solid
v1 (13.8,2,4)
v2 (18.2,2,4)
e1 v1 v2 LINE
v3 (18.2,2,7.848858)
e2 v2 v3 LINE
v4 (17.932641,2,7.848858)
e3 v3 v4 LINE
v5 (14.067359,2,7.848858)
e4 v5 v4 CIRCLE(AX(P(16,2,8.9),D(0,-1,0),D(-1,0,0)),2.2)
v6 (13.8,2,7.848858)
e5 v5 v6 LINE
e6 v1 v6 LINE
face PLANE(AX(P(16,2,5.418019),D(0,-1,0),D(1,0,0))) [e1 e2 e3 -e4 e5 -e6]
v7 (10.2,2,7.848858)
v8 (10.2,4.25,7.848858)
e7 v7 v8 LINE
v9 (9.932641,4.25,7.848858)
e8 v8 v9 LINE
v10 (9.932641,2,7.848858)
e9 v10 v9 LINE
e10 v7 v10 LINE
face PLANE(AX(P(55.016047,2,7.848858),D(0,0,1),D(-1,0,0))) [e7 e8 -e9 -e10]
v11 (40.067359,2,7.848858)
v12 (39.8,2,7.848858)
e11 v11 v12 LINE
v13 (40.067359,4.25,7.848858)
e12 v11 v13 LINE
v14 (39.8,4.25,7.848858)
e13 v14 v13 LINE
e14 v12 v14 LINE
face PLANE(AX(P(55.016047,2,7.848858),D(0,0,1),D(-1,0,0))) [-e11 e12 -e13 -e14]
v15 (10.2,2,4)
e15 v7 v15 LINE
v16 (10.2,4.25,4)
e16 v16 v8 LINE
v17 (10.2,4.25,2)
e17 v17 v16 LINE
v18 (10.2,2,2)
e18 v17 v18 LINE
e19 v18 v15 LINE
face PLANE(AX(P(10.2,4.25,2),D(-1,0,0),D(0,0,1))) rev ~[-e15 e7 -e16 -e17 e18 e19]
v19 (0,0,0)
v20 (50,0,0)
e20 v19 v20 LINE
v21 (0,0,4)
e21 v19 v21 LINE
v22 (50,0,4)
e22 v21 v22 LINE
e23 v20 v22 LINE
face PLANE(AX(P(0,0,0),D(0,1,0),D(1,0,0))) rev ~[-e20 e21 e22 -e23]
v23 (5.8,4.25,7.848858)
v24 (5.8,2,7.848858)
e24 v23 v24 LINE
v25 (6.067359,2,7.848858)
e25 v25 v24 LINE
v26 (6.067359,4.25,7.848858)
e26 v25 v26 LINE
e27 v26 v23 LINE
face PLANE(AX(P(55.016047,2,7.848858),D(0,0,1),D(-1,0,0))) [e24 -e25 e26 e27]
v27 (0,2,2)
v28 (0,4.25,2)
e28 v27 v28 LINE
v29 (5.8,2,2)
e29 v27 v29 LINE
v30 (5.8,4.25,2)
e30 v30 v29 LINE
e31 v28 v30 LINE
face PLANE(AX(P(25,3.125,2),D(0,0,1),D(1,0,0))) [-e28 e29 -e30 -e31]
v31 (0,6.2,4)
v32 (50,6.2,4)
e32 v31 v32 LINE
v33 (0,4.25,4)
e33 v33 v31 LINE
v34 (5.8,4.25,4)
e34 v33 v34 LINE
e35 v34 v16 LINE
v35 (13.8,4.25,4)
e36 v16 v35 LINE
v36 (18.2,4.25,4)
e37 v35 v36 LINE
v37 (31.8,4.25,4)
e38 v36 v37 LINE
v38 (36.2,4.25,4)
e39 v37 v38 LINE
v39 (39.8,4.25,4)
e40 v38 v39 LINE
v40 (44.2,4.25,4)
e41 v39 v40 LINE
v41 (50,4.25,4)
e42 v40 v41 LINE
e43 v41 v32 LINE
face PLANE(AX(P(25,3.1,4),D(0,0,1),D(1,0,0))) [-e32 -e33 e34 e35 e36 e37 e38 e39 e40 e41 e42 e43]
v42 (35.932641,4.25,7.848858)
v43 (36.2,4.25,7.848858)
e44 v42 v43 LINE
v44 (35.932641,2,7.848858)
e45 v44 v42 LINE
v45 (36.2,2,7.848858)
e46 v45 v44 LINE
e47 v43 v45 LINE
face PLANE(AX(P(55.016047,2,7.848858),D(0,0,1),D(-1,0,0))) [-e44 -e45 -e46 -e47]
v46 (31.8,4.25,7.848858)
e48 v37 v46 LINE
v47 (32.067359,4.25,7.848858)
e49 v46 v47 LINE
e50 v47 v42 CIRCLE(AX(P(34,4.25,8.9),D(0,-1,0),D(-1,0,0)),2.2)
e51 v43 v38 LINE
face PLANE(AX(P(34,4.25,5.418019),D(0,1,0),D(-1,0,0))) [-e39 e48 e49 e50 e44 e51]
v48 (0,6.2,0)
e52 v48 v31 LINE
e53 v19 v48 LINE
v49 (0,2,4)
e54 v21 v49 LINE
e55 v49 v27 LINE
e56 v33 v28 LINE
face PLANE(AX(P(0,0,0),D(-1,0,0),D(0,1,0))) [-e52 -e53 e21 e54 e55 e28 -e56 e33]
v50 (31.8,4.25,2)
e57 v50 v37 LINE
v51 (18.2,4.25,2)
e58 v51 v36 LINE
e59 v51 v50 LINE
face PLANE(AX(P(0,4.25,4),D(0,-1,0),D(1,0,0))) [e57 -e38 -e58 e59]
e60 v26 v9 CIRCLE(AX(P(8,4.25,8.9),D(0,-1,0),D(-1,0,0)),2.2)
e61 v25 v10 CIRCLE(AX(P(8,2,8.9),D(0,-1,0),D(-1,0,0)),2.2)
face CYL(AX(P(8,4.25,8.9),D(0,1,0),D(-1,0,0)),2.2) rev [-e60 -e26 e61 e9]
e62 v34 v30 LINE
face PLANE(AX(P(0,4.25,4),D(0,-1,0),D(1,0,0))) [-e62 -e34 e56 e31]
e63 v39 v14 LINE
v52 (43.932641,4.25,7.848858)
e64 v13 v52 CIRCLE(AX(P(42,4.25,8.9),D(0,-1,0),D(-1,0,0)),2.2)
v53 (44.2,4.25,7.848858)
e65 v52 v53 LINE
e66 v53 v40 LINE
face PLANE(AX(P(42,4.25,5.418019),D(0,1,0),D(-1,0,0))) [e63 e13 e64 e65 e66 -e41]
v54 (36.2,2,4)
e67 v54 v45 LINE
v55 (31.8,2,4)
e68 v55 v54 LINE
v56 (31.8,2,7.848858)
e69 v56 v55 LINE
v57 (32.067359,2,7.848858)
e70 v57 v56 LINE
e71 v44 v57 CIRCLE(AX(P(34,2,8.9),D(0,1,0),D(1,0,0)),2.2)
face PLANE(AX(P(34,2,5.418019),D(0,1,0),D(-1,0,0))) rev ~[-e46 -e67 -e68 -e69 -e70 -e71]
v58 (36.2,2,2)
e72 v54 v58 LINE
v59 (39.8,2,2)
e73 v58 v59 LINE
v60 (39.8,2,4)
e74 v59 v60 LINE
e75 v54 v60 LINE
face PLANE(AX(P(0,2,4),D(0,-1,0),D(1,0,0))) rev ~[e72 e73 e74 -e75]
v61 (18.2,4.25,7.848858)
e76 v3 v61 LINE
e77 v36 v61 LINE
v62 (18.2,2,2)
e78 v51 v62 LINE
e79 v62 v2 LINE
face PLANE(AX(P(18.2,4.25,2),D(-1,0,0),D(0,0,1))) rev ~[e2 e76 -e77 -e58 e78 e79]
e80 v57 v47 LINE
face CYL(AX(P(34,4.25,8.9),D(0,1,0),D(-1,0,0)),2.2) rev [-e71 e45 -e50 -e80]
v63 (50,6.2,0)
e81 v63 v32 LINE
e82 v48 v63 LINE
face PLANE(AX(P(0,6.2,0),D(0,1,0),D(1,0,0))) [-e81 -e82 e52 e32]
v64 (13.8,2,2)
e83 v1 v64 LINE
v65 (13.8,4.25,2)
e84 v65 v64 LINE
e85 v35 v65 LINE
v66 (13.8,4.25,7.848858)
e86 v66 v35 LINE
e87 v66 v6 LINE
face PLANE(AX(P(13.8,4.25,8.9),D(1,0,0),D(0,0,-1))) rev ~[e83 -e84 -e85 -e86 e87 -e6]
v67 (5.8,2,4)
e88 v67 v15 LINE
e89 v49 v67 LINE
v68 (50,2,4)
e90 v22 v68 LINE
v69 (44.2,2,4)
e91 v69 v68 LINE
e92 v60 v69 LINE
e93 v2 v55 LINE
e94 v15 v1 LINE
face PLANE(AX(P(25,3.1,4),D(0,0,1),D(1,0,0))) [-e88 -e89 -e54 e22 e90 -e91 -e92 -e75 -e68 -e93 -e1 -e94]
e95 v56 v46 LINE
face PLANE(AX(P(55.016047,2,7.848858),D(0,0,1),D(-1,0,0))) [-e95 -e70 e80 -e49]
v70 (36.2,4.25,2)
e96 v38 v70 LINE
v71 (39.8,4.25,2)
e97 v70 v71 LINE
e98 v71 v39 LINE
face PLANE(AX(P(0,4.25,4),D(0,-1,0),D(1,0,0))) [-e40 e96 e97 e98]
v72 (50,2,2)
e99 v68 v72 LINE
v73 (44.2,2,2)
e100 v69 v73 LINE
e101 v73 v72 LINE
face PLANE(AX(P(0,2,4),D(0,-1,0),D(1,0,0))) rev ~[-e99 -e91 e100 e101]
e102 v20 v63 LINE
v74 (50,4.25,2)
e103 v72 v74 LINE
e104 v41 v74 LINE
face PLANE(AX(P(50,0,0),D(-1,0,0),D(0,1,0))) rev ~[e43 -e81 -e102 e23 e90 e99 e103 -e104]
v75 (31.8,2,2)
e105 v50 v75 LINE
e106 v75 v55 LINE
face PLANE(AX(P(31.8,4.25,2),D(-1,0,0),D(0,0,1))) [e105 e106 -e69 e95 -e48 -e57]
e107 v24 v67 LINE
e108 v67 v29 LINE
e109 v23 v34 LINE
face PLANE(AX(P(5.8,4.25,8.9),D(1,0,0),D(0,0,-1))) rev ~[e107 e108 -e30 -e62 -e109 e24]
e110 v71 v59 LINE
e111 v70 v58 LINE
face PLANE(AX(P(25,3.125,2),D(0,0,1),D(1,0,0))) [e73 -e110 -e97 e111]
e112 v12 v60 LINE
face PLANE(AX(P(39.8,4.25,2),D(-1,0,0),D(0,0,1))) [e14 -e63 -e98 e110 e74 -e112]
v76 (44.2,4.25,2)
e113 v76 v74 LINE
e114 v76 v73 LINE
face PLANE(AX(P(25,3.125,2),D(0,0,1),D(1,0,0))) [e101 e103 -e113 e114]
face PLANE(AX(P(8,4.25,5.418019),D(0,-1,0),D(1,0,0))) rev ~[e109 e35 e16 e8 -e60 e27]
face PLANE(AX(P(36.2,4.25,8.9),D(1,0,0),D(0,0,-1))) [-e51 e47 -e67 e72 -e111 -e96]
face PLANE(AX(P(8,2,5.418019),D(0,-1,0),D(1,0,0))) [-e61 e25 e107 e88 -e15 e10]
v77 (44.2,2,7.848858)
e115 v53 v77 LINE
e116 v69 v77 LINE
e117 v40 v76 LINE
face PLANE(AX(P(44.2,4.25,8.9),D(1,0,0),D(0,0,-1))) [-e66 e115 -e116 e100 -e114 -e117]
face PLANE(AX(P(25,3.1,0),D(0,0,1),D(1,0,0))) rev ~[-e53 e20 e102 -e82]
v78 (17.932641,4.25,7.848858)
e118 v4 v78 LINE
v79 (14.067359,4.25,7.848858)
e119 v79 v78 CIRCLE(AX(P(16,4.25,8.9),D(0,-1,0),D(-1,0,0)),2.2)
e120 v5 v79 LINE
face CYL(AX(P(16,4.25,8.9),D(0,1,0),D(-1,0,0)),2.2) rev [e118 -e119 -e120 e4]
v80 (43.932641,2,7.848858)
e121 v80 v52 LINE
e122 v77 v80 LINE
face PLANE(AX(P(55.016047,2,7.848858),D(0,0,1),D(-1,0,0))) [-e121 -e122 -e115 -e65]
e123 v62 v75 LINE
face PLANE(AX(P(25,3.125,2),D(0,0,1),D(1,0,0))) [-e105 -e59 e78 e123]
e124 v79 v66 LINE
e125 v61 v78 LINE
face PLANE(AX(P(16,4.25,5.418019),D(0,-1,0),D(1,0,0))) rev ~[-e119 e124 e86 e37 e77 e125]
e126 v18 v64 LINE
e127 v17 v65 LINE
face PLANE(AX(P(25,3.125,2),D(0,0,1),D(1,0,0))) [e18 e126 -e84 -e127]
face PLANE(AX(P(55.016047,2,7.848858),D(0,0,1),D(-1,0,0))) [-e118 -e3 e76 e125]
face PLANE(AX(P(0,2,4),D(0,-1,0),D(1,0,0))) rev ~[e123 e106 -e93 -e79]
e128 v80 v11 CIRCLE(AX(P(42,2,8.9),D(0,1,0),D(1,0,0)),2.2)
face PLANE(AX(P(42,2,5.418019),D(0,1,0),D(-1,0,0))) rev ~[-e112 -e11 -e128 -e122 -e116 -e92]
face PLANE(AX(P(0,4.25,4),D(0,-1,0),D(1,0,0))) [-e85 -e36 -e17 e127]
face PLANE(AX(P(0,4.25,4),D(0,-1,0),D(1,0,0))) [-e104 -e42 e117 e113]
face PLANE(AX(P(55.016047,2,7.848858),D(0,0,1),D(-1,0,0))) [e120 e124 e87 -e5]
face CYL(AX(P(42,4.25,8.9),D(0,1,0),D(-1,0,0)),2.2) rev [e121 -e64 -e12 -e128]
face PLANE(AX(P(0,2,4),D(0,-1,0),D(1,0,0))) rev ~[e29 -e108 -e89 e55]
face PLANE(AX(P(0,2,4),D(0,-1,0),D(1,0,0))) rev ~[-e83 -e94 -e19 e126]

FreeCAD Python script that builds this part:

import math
import FreeCAD as App
import Part
import Sketcher

V = App.Vector
Q = App.Units.Quantity

doc = App.newDocument("Part")
body = doc.addObject("PartDesign::Body", "Body")

# Sketch on XY plane
sketch1 = body.newObject("Sketcher::SketchObject", "Sketch")
sketch1.AttachmentSupport = (doc.getObject("XY_Plane"), [""])
sketch1.MapMode = "FlatFace"
sketch1.addGeometry(Part.LineSegment(V(0, 6, 0), V(0, 0, 0)), False)
sketch1.addGeometry(Part.LineSegment(V(0, 0, 0), V(50, 0, 0)), False)
sketch1.addGeometry(Part.LineSegment(V(50, 0, 0), V(50, 6, 0)), False)
sketch1.addGeometry(Part.LineSegment(V(50, 6, 0), V(0, 6, 0)), False)
sketch1.addConstraint(Sketcher.Constraint("Coincident", 0, 2, 1, 1))
sketch1.addConstraint(Sketcher.Constraint("Coincident", 1, 2, 2, 1))
sketch1.addConstraint(Sketcher.Constraint("Coincident", 2, 2, 3, 1))
sketch1.addConstraint(Sketcher.Constraint("Coincident", 3, 2, 0, 1))
sketch1.addConstraint(Sketcher.Constraint("Vertical", 0))
sketch1.addConstraint(Sketcher.Constraint("Horizontal", 1))
sketch1.addConstraint(Sketcher.Constraint("Vertical", 2))
sketch1.addConstraint(Sketcher.Constraint("Horizontal", 3))
sketch1.addConstraint(Sketcher.Constraint("Coincident", 0, 2, -1, 1))
sketch1.addConstraint(Sketcher.Constraint("DistanceX", 1, 1, 1, 2, Q("50 mm")))
sketch1.addConstraint(Sketcher.Constraint("DistanceY", 0, 2, 0, 1, Q("6.2 mm")))
pad1 = body.newObject("PartDesign::Pad", "Pad")
pad1.Profile = sketch1
pad1.Length = 4

# Sketch on XY plane
sketch2 = body.newObject("Sketcher::SketchObject", "Sketch001")
sketch2.AttachmentSupport = (doc.getObject("XY_Plane"), [""])
sketch2.MapMode = "FlatFace"
sketch2.AttachmentOffset = App.Placement(V(0, 0, 4), App.Rotation())
sketch2.addGeometry(Part.LineSegment(V(0, 4.2, 0), V(0, 2, 0)), False)
sketch2.addGeometry(Part.LineSegment(V(0, 2, 0), V(50, 2, 0)), False)
sketch2.addGeometry(Part.LineSegment(V(50, 2, 0), V(50, 4.2, 0)), False)
sketch2.addGeometry(Part.LineSegment(V(50, 4.2, 0), V(0, 4.2, 0)), False)
sketch2.addConstraint(Sketcher.Constraint("Coincident", 0, 2, 1, 1))
sketch2.addConstraint(Sketcher.Constraint("Coincident", 1, 2, 2, 1))
sketch2.addConstraint(Sketcher.Constraint("Coincident", 2, 2, 3, 1))
sketch2.addConstraint(Sketcher.Constraint("Coincident", 3, 2, 0, 1))
sketch2.addConstraint(Sketcher.Constraint("Vertical", 0))
sketch2.addConstraint(Sketcher.Constraint("Horizontal", 1))
sketch2.addConstraint(Sketcher.Constraint("Vertical", 2))
sketch2.addConstraint(Sketcher.Constraint("Horizontal", 3))
sketch2.addConstraint(Sketcher.Constraint("PointOnObject", 0, 2, -2))
sketch2.addConstraint(Sketcher.Constraint("DistanceX", 1, 1, 1, 2, Q("50 mm")))
sketch2.addConstraint(Sketcher.Constraint("DistanceY", -1, 1, 0, 2, Q("2 mm")))
sketch2.addConstraint(Sketcher.Constraint("DistanceY", 0, 2, 0, 1, Q("2.25 mm")))
pocket1 = body.newObject("PartDesign::Pocket", "Pocket")
pocket1.Profile = sketch2
pocket1.Length = 2

# Sketch on XZ plane
sketch3 = body.newObject("Sketcher::SketchObject", "Sketch002")
sketch3.AttachmentSupport = (doc.getObject("XZ_Plane"), [""])
sketch3.MapMode = "FlatFace"
sketch3.AttachmentOffset = App.Placement(V(0, 0, -4.25), App.Rotation())
sketch3.addGeometry(Part.LineSegment(V(5.8, 2, 0), V(10.2, 2, 0)), False)
sketch3.addGeometry(Part.LineSegment(V(10.2, 2, 0), V(10.2, 8.9, 0)), False)
sketch3.addGeometry(Part.ArcOfCircle(Part.Circle(V(8, 8.9, 0), V(0, 0, 1), 2.2), math.radians(180), math.radians(360)), False)
sketch3.addGeometry(Part.LineSegment(V(5.8, 8.9, 0), V(5.8, 2, 0)), False)
sketch3.addGeometry(Part.LineSegment(V(13.8, 2, 0), V(18.2, 2, 0)), False)
sketch3.addGeometry(Part.LineSegment(V(18.2, 2, 0), V(18.2, 8.9, 0)), False)
sketch3.addGeometry(Part.ArcOfCircle(Part.Circle(V(16, 8.9, 0), V(0, 0, 1), 2.2), math.radians(180), math.radians(360)), False)
sketch3.addGeometry(Part.LineSegment(V(13.8, 8.9, 0), V(13.8, 2, 0)), False)
sketch3.addGeometry(Part.ArcOfCircle(Part.Circle(V(34, 8.9, 0), V(0, 0, 1), 2.2), math.radians(180), math.radians(360)), False)
sketch3.addGeometry(Part.LineSegment(V(31.8, 8.9, 0), V(31.8, 2, 0)), False)
sketch3.addGeometry(Part.LineSegment(V(31.8, 2, 0), V(36.2, 2, 0)), False)
sketch3.addGeometry(Part.LineSegment(V(36.2, 2, 0), V(36.2, 8.9, 0)), False)
sketch3.addGeometry(Part.ArcOfCircle(Part.Circle(V(42, 8.9, 0), V(0, 0, 1), 2.2), math.radians(180), math.radians(360)), False)
sketch3.addGeometry(Part.LineSegment(V(39.8, 8.9, 0), V(39.8, 2, 0)), False)
sketch3.addGeometry(Part.LineSegment(V(39.8, 2, 0), V(44.2, 2, 0)), False)
sketch3.addGeometry(Part.LineSegment(V(44.2, 2, 0), V(44.2, 8.9, 0)), False)
sketch3.addConstraint(Sketcher.Constraint("Coincident", 0, 2, 1, 1))
sketch3.addConstraint(Sketcher.Constraint("Tangent", 1, 2, 2, 2))
sketch3.addConstraint(Sketcher.Constraint("Tangent", 2, 1, 3, 1))
sketch3.addConstraint(Sketcher.Constraint("Coincident", 3, 2, 0, 1))
sketch3.addConstraint(Sketcher.Constraint("Coincident", 4, 2, 5, 1))
sketch3.addConstraint(Sketcher.Constraint("Tangent", 5, 2, 6, 2))
sketch3.addConstraint(Sketcher.Constraint("Tangent", 6, 1, 7, 1))
sketch3.addConstraint(Sketcher.Constraint("Coincident", 7, 2, 4, 1))
sketch3.addConstraint(Sketcher.Constraint("Tangent", 8, 1, 9, 1))
sketch3.addConstraint(Sketcher.Constraint("Coincident", 9, 2, 10, 1))
sketch3.addConstraint(Sketcher.Constraint("Coincident", 10, 2, 11, 1))
sketch3.addConstraint(Sketcher.Constraint("Tangent", 11, 2, 8, 2))
sketch3.addConstraint(Sketcher.Constraint("Tangent", 12, 1, 13, 1))
sketch3.addConstraint(Sketcher.Constraint("Coincident", 13, 2, 14, 1))
sketch3.addConstraint(Sketcher.Constraint("Coincident", 14, 2, 15, 1))
sketch3.addConstraint(Sketcher.Constraint("Tangent", 15, 2, 12, 2))
sketch3.addConstraint(Sketcher.Constraint("Horizontal", 0))
sketch3.addConstraint(Sketcher.Constraint("Vertical", 1))
sketch3.addConstraint(Sketcher.Constraint("Vertical", 3))
sketch3.addConstraint(Sketcher.Constraint("Horizontal", 4))
sketch3.addConstraint(Sketcher.Constraint("Vertical", 5))
sketch3.addConstraint(Sketcher.Constraint("Vertical", 7))
sketch3.addConstraint(Sketcher.Constraint("Vertical", 9))
sketch3.addConstraint(Sketcher.Constraint("Horizontal", 10))
sketch3.addConstraint(Sketcher.Constraint("Vertical", 11))
sketch3.addConstraint(Sketcher.Constraint("Vertical", 13))
sketch3.addConstraint(Sketcher.Constraint("Horizontal", 14))
sketch3.addConstraint(Sketcher.Constraint("Vertical", 15))
sketch3.addConstraint(Sketcher.Constraint("Equal", 2, 6))
sketch3.addConstraint(Sketcher.Constraint("Equal", 6, 8))
sketch3.addConstraint(Sketcher.Constraint("Equal", 8, 12))
sketch3.addConstraint(Sketcher.Constraint("Horizontal", 2, 3, 6, 3))
sketch3.addConstraint(Sketcher.Constraint("Horizontal", 6, 3, 8, 3))
sketch3.addConstraint(Sketcher.Constraint("Horizontal", 8, 3, 12, 3))
sketch3.addConstraint(Sketcher.Constraint("Horizontal", 3, 2, 4, 2))
sketch3.addConstraint(Sketcher.Constraint("Horizontal", 7, 2, 9, 2))
sketch3.addConstraint(Sketcher.Constraint("Horizontal", 10, 2, 13, 2))
sketch3.addConstraint(Sketcher.Constraint("Radius", 2, Q("2.2 mm")))
sketch3.addConstraint(Sketcher.Constraint("DistanceY", 1, 1, 1, 2, Q("6.9 mm")))
sketch3.addConstraint(Sketcher.Constraint("DistanceX", -1, 1, 2, 3, Q("8 mm")))
sketch3.addConstraint(Sketcher.Constraint("DistanceX", -1, 1, 6, 3, Q("16 mm")))
sketch3.addConstraint(Sketcher.Constraint("DistanceX", -1, 1, 8, 3, Q("34 mm")))
sketch3.addConstraint(Sketcher.Constraint("DistanceX", -1, 1, 12, 3, Q("42 mm")))
sketch3.addConstraint(Sketcher.Constraint("DistanceY", -1, 1, 0, 2, Q("2 mm")))
pad2 = body.newObject("PartDesign::Pad", "Pad001")
pad2.Profile = sketch3
pad2.Length = 2.25

# Sketch on XZ plane
sketch4 = body.newObject("Sketcher::SketchObject", "Sketch003")
sketch4.AttachmentSupport = (doc.getObject("XZ_Plane"), [""])
sketch4.MapMode = "FlatFace"
sketch4.AttachmentOffset = App.Placement(V(0, 0, -2), App.Rotation())
sketch4.addGeometry(Part.LineSegment(V(55, 10.3, 0), V(55, 7.8, 0)), False)
sketch4.addGeometry(Part.LineSegment(V(55, 7.8, 0), V(-3.6, 7.8, 0)), False)
sketch4.addGeometry(Part.LineSegment(V(-3.6, 7.8, 0), V(-3.6, 10.3, 0)), False)
sketch4.addGeometry(Part.LineSegment(V(-3.6, 10.3, 0), V(55, 10.3, 0)), False)
sketch4.addConstraint(Sketcher.Constraint("Coincident", 0, 2, 1, 1))
sketch4.addConstraint(Sketcher.Constraint("Coincident", 1, 2, 2, 1))
sketch4.addConstraint(Sketcher.Constraint("Coincident", 2, 2, 3, 1))
sketch4.addConstraint(Sketcher.Constraint("Coincident", 3, 2, 0, 1))
sketch4.addConstraint(Sketcher.Constraint("Vertical", 0))
sketch4.addConstraint(Sketcher.Constraint("Horizontal", 1))
sketch4.addConstraint(Sketcher.Constraint("Vertical", 2))
sketch4.addConstraint(Sketcher.Constraint("Horizontal", 3))
sketch4.addConstraint(Sketcher.Constraint("DistanceX", 1, 2, 1, 1, Q("58.610697 mm")))
sketch4.addConstraint(Sketcher.Constraint("DistanceY", 0, 2, 0, 1, Q("2.473083 mm")))
sketch4.addConstraint(Sketcher.Constraint("DistanceX", 1, 2, -1, 1, Q("3.594651 mm")))
sketch4.addConstraint(Sketcher.Constraint("DistanceY", -1, 1, 2, 2, Q("10.321941 mm")))
pocket2 = body.newObject("PartDesign::Pocket", "Pocket001")
pocket2.Profile = sketch4
pocket2.Type = "ThroughAll"
pocket2.Midplane = True

doc.recompute()
